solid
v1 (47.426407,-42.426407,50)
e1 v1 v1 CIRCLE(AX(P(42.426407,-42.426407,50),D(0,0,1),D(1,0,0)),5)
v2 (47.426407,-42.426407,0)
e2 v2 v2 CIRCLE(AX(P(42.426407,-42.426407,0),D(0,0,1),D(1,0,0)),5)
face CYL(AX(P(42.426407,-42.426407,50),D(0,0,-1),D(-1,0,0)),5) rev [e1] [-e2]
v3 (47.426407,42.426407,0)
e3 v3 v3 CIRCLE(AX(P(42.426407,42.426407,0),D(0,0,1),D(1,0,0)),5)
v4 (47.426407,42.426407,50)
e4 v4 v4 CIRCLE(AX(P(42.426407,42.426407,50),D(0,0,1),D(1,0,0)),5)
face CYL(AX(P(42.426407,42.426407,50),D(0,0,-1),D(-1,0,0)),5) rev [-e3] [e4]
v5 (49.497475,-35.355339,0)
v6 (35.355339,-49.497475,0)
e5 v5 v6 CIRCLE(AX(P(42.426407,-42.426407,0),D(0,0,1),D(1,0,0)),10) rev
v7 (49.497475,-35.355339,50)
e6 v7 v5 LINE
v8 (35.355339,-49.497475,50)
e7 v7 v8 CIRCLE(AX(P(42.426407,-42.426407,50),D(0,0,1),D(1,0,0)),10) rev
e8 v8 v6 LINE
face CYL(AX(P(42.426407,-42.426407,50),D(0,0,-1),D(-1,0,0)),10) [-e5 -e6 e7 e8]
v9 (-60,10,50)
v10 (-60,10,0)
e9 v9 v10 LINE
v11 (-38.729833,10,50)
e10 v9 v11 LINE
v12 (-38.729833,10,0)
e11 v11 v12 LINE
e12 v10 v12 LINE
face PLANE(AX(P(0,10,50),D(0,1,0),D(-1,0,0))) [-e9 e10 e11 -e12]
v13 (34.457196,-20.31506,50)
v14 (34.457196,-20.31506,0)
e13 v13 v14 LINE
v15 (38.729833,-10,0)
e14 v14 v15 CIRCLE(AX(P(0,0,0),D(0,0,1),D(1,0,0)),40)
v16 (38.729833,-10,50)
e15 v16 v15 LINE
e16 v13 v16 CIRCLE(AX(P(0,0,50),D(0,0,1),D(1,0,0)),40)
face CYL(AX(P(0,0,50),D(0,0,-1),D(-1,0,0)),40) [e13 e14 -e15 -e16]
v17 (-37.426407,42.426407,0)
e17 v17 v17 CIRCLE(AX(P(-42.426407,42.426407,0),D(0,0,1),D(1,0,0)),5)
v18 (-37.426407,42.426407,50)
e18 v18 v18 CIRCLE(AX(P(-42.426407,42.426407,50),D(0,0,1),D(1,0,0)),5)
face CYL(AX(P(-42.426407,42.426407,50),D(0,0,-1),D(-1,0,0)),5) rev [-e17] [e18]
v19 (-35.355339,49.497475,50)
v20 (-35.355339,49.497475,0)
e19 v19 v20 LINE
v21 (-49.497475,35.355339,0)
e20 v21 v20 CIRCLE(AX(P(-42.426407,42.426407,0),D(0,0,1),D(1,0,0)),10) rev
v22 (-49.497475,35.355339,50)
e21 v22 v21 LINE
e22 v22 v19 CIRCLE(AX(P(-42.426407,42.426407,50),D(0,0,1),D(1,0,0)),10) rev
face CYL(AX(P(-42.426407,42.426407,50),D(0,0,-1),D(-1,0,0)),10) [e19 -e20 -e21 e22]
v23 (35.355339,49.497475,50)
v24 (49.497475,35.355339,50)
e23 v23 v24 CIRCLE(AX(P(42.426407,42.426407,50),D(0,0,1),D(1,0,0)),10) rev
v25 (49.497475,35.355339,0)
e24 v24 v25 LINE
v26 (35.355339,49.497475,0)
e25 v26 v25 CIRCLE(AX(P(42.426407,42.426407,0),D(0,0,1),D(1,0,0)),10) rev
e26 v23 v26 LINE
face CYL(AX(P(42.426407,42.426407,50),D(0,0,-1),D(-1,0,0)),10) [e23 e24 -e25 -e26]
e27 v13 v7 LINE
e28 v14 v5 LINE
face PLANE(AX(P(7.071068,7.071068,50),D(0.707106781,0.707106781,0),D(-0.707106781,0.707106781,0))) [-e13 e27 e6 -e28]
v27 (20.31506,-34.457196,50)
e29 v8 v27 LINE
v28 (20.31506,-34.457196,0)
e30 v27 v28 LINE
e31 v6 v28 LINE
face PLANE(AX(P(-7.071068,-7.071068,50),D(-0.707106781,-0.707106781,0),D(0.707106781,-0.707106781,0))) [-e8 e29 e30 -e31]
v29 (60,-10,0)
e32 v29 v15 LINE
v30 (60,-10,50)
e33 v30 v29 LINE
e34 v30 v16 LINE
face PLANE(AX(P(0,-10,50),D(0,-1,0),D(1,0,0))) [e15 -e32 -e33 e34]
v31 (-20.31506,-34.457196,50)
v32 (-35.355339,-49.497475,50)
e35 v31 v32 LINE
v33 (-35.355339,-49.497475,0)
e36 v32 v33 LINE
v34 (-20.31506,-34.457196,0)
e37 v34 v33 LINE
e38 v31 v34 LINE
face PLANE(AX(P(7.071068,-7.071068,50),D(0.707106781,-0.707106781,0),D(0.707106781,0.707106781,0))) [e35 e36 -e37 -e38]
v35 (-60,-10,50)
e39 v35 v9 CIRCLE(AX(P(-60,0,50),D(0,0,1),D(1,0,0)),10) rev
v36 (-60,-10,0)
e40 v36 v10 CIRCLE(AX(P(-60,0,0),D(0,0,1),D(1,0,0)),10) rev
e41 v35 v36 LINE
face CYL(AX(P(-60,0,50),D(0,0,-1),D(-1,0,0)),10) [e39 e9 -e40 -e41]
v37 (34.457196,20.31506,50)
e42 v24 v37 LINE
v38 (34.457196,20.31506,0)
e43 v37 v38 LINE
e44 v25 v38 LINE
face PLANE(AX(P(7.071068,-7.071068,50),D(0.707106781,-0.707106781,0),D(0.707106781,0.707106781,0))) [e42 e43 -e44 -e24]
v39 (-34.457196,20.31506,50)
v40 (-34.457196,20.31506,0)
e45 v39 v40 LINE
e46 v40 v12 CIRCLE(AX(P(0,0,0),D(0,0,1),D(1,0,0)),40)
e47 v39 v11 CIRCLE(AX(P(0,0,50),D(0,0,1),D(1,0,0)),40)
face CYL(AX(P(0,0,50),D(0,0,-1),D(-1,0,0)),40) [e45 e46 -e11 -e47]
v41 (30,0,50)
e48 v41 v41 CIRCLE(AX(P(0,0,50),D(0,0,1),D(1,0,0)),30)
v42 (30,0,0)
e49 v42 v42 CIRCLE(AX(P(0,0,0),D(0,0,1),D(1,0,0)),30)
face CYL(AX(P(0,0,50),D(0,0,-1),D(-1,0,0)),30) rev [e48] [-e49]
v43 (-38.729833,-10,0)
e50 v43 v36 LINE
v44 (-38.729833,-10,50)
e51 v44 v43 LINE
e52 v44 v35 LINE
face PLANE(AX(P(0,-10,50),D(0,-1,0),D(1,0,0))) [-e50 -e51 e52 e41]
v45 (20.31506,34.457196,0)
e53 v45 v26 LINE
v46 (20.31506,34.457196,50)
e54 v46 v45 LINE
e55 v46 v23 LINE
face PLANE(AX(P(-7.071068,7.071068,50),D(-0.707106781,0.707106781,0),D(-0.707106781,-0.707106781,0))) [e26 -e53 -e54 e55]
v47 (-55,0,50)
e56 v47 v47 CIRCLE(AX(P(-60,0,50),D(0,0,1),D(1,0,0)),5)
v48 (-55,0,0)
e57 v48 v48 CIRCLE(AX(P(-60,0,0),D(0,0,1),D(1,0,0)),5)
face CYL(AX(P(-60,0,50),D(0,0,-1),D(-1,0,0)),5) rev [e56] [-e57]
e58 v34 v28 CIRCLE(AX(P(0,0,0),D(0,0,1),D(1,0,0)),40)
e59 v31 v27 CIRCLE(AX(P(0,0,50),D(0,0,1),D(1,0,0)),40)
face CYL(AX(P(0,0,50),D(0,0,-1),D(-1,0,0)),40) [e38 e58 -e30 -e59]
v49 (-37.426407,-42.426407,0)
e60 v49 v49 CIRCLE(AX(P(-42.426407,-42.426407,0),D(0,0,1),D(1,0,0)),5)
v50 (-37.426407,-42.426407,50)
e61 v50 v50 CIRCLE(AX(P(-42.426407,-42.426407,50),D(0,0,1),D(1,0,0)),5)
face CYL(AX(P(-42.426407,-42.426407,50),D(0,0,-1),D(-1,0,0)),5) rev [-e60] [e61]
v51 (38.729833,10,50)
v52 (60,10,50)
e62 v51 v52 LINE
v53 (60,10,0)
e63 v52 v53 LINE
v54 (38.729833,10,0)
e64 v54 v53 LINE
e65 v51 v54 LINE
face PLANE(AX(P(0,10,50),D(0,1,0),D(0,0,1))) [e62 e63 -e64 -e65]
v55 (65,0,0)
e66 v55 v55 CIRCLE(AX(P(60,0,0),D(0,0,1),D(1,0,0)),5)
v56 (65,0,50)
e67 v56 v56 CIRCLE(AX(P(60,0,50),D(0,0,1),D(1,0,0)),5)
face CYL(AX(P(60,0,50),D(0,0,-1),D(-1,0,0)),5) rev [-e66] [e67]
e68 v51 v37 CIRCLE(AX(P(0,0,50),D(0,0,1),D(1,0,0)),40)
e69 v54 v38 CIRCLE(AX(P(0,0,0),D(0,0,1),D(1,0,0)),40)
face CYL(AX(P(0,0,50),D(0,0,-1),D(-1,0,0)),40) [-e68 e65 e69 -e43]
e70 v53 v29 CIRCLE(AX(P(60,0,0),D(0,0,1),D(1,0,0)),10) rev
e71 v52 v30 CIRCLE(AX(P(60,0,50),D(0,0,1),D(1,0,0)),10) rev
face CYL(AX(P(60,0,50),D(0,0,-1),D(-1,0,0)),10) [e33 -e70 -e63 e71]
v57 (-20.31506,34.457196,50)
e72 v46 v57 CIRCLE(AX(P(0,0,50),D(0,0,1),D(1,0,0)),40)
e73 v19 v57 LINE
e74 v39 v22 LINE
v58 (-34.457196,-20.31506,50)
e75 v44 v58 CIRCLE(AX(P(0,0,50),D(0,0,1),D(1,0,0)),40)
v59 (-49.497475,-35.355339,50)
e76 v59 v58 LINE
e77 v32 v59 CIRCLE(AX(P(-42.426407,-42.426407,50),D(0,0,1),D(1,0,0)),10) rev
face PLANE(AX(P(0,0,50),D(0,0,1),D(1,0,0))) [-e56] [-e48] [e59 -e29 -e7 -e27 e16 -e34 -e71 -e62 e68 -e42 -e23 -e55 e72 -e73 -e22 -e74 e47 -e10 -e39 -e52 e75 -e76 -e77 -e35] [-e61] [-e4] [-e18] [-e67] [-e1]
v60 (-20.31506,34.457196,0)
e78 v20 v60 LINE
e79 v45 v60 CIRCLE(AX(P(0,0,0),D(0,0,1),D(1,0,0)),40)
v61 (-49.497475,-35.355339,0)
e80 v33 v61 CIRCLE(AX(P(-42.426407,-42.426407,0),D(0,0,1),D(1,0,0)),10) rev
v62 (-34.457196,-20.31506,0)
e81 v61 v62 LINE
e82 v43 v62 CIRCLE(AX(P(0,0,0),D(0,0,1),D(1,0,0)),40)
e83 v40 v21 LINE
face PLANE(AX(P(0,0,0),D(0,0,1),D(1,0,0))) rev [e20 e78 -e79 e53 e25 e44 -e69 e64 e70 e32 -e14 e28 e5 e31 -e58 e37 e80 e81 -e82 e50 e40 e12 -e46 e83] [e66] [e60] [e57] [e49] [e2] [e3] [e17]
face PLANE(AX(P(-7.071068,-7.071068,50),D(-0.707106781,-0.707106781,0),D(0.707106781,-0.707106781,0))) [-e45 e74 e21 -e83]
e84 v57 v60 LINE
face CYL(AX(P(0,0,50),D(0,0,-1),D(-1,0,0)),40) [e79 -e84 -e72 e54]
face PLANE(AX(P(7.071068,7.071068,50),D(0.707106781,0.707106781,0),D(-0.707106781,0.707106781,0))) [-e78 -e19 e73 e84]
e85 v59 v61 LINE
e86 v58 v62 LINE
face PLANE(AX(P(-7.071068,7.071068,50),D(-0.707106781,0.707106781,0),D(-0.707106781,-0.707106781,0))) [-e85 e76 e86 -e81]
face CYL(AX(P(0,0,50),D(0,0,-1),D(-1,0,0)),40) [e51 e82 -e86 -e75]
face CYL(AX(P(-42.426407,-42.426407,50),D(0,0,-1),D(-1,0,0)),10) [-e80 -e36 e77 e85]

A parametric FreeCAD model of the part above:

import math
import FreeCAD as App
import Part
import Sketcher
Q = App.Units.Quantity

doc = App.newDocument("Part")
body = doc.addObject("PartDesign::Body", "Body")

# Sketch on XY plane
sketch1 = doc.addObject("Sketcher::SketchObject", "Sketch")
body.addObject(sketch1)
sketch1.AttachmentSupport = (doc.XY_Plane, [""])
sketch1.MapMode = "FlatFace"
sketch1.addGeometry([
    Part.ArcOfCircle(Part.Circle(App.Vector(0, 0, 0), App.Vector(0, 0, 1), 40), math.radians(14.48), math.radians(30.52)),  # 0
    Part.LineSegment(App.Vector(34, 20, 0), App.Vector(49, 35, 0)),  # 1
    Part.ArcOfCircle(Part.Circle(App.Vector(42, 42, 0), App.Vector(0, 0, 1), 10), math.radians(-45), math.radians(135)),  # 2
    Part.LineSegment(App.Vector(35, 49, 0), App.Vector(20, 34, 0)),  # 3
    Part.ArcOfCircle(Part.Circle(App.Vector(0, 0, 0), App.Vector(0, 0, 1), 40), math.radians(59), math.radians(121)),  # 4
    Part.LineSegment(App.Vector(-20, 34, 0), App.Vector(-35, 49, 0)),  # 5
    Part.ArcOfCircle(Part.Circle(App.Vector(-42, 42, 0), App.Vector(0, 0, 1), 10), math.radians(45), math.radians(225)),  # 6
    Part.LineSegment(App.Vector(-49, 35, 0), App.Vector(-34, 20, 0)),  # 7
    Part.ArcOfCircle(Part.Circle(App.Vector(0, 0, 0), App.Vector(0, 0, 1), 40), math.radians(149.48), math.radians(165.52)),  # 8
    Part.LineSegment(App.Vector(-39, 10, 0), App.Vector(-60, 10, 0)),  # 9
    Part.ArcOfCircle(Part.Circle(App.Vector(-60, 0, 0), App.Vector(0, 0, 1), 10), math.radians(90), math.radians(270)),  # 10
    Part.LineSegment(App.Vector(-60, -10, 0), App.Vector(-39, -10, 0)),  # 11
    Part.ArcOfCircle(Part.Circle(App.Vector(0, 0, 0), App.Vector(0, 0, 1), 40), math.radians(-165.52), math.radians(-149.48)),  # 12
    Part.LineSegment(App.Vector(-34, -20, 0), App.Vector(-49, -35, 0)),  # 13
    Part.ArcOfCircle(Part.Circle(App.Vector(-42, -42, 0), App.Vector(0, 0, 1), 10), math.radians(135), math.radians(315)),  # 14
    Part.LineSegment(App.Vector(-35, -49, 0), App.Vector(-20, -34, 0)),  # 15
    Part.ArcOfCircle(Part.Circle(App.Vector(0, 0, 0), App.Vector(0, 0, 1), 40), math.radians(-121), math.radians(-59)),  # 16
    Part.LineSegment(App.Vector(20, -34, 0), App.Vector(35, -49, 0)),  # 17
    Part.ArcOfCircle(Part.Circle(App.Vector(42, -42, 0), App.Vector(0, 0, 1), 10), math.radians(-135), math.radians(45)),  # 18
    Part.LineSegment(App.Vector(49, -35, 0), App.Vector(34, -20, 0)),  # 19
    Part.ArcOfCircle(Part.Circle(App.Vector(0, 0, 0), App.Vector(0, 0, 1), 40), math.radians(-30.52), math.radians(-14.48)),  # 20
    Part.LineSegment(App.Vector(39, -10, 0), App.Vector(60, -10, 0)),  # 21
    Part.ArcOfCircle(Part.Circle(App.Vector(60, 0, 0), App.Vector(0, 0, 1), 10), math.radians(-90), math.radians(90)),  # 22
    Part.LineSegment(App.Vector(60, 10, 0), App.Vector(39, 10, 0)),  # 23
    Part.Circle(App.Vector(0, 0, 0), App.Vector(0, 0, 1), 30),  # 24
    Part.Circle(App.Vector(60, 0, 0), App.Vector(0, 0, 1), 5),  # 25
    Part.Circle(App.Vector(42, 42, 0), App.Vector(0, 0, 1), 5),  # 26
    Part.Circle(App.Vector(-42, 42, 0), App.Vector(0, 0, 1), 5),  # 27
    Part.Circle(App.Vector(-60, 0, 0), App.Vector(0, 0, 1), 5),  # 28
    Part.Circle(App.Vector(-42, -42, 0), App.Vector(0, 0, 1), 5),  # 29
    Part.Circle(App.Vector(42, -42, 0), App.Vector(0, 0, 1), 5),  # 30
], False)
sketch1.addConstraint([
    Sketcher.Constraint("Coincident", 0, 2, 1, 1),
    Sketcher.Constraint("Tangent", 1, 2, 2, 1),
    Sketcher.Constraint("Tangent", 2, 2, 3, 1),
    Sketcher.Constraint("Coincident", 3, 2, 4, 1),
    Sketcher.Constraint("Coincident", 4, 2, 5, 1),
    Sketcher.Constraint("Tangent", 5, 2, 6, 1),
    Sketcher.Constraint("Tangent", 6, 2, 7, 1),
    Sketcher.Constraint("Coincident", 7, 2, 8, 1),
    Sketcher.Constraint("Coincident", 8, 2, 9, 1),
    Sketcher.Constraint("Tangent", 9, 2, 10, 1),
    Sketcher.Constraint("Tangent", 10, 2, 11, 1),
    Sketcher.Constraint("Coincident", 11, 2, 12, 1),
    Sketcher.Constraint("Coincident", 12, 2, 13, 1),
    Sketcher.Constraint("Tangent", 13, 2, 14, 1),
    Sketcher.Constraint("Tangent", 14, 2, 15, 1),
    Sketcher.Constraint("Coincident", 15, 2, 16, 1),
    Sketcher.Constraint("Coincident", 16, 2, 17, 1),
    Sketcher.Constraint("Tangent", 17, 2, 18, 1),
    Sketcher.Constraint("Tangent", 18, 2, 19, 1),
    Sketcher.Constraint("Coincident", 19, 2, 20, 1),
    Sketcher.Constraint("Coincident", 20, 2, 21, 1),
    Sketcher.Constraint("Tangent", 21, 2, 22, 1),
    Sketcher.Constraint("Tangent", 22, 2, 23, 1),
    Sketcher.Constraint("Coincident", 23, 2, 0, 1),
    Sketcher.Constraint("Horizontal", 9),
    Sketcher.Constraint("Horizontal", 11),
    Sketcher.Constraint("Horizontal", 21),
    Sketcher.Constraint("Horizontal", 23),
    Sketcher.Constraint("Coincident", 0, 3, -1, 1),
    Sketcher.Constraint("Coincident", 4, 3, -1, 1),
    Sketcher.Constraint("Coincident", 8, 3, -1, 1),
    Sketcher.Constraint("Coincident", 12, 3, -1, 1),
    Sketcher.Constraint("Coincident", 16, 3, -1, 1),
    Sketcher.Constraint("Coincident", 20, 3, -1, 1),
    Sketcher.Constraint("Coincident", 24, 3, -1, 1),
    Sketcher.Constraint("Coincident", 25, 3, 22, 3),
    Sketcher.Constraint("Coincident", 26, 3, 2, 3),
    Sketcher.Constraint("Coincident", 27, 3, 6, 3),
    Sketcher.Constraint("Coincident", 28, 3, 10, 3),
    Sketcher.Constraint("Coincident", 29, 3, 14, 3),
    Sketcher.Constraint("Coincident", 30, 3, 18, 3),
    Sketcher.Constraint("Equal", 0, 4),
    Sketcher.Constraint("Equal", 2, 6),
    Sketcher.Constraint("Equal", 4, 8),
    Sketcher.Constraint("Equal", 6, 10),
    Sketcher.Constraint("Equal", 8, 12),
    Sketcher.Constraint("Equal", 10, 14),
    Sketcher.Constraint("Equal", 12, 16),
    Sketcher.Constraint("Equal", 14, 18),
    Sketcher.Constraint("Equal", 16, 20),
    Sketcher.Constraint("Equal", 18, 22),
    Sketcher.Constraint("Equal", 25, 26),
    Sketcher.Constraint("Equal", 26, 27),
    Sketcher.Constraint("Equal", 27, 28),
    Sketcher.Constraint("Equal", 28, 29),
    Sketcher.Constraint("Equal", 29, 30),
    Sketcher.Constraint("Symmetric", 2, 3, 14, 3, -1, 1),
    Sketcher.Constraint("Symmetric", 6, 3, 18, 3, -1, 1),
    Sketcher.Constraint("Symmetric", 10, 3, 22, 3, -1, 1),
    Sketcher.Constraint("Symmetric", 2, 3, 6, 3, -2),
    Sketcher.Constraint("PointOnObject", 10, 3, -1),
    Sketcher.Constraint("Parallel", 1, 3),
    Sketcher.Constraint("Perpendicular", 3, 5),
    Sketcher.Constraint("Parallel", 5, 7),
    Sketcher.Constraint("Perpendicular", 7, 13),
    Sketcher.Constraint("Parallel", 13, 15),
    Sketcher.Constraint("Perpendicular", 15, 17),
    Sketcher.Constraint("Parallel", 17, 19),
    Sketcher.Constraint("Horizontal", 3, 2, 4, 2),
    Sketcher.Constraint("Equal", 1, 3),
    Sketcher.Constraint("Diameter", 24, Q("60 mm")),
    Sketcher.Constraint("Diameter", 25, Q("10 mm")),
    Sketcher.Constraint("Radius", 0, Q("40 mm")),
    Sketcher.Constraint("Radius", 2, Q("10 mm")),
    Sketcher.Constraint("DistanceX", 10, 3, -1, 1, Q("60 mm")),
    Sketcher.Constraint("DistanceY", -1, 1, 1, 2, Q("35.355339 mm")),
])
pad1 = doc.addObject("PartDesign::Pad", "Pad")
body.addObject(pad1)
pad1.Profile = sketch1
pad1.Length = 50

doc.recompute()
